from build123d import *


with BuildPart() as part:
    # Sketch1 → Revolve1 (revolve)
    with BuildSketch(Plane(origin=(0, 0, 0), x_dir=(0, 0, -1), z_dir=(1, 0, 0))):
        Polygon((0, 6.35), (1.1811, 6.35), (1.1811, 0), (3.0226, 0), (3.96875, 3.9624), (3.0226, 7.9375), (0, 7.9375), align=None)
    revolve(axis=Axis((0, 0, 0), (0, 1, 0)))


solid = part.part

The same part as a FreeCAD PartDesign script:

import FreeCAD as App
import Part
import Sketcher
from FreeCAD import Vector
Q = App.Units.Quantity

doc = App.newDocument("Part")
body = doc.addObject("PartDesign::Body", "Body")

sketch1 = body.newObject("Sketcher::SketchObject", "Sketch")
sketch1.AttachmentSupport = (doc.getObject("YZ_Plane"), [""])
sketch1.MapMode = "FlatFace"
sketch1.addGeometry(Part.LineSegment(Vector(6.3, 0, 0), Vector(6.3, -1.2, 0)), False)
sketch1.addGeometry(Part.LineSegment(Vector(6.3, -1.2, 0), Vector(0, -1.2, 0)), False)
sketch1.addGeometry(Part.LineSegment(Vector(0, -1.2, 0), Vector(0, -3, 0)), False)
sketch1.addGeometry(Part.LineSegment(Vector(0, -3, 0), Vector(4, -4, 0)), False)
sketch1.addGeometry(Part.LineSegment(Vector(4, -4, 0), Vector(7.9, -3, 0)), False)
sketch1.addGeometry(Part.LineSegment(Vector(7.9, -3, 0), Vector(7.9, 0, 0)), False)
sketch1.addGeometry(Part.LineSegment(Vector(7.9, 0, 0), Vector(6.3, 0, 0)), False)
sketch1.addConstraint(Sketcher.Constraint("Coincident", 0, 2, 1, 1))
sketch1.addConstraint(Sketcher.Constraint("Coincident", 1, 2, 2, 1))
sketch1.addConstraint(Sketcher.Constraint("Coincident", 2, 2, 3, 1))
sketch1.addConstraint(Sketcher.Constraint("Coincident", 3, 2, 4, 1))
sketch1.addConstraint(Sketcher.Constraint("Coincident", 4, 2, 5, 1))
sketch1.addConstraint(Sketcher.Constraint("Coincident", 5, 2, 6, 1))
sketch1.addConstraint(Sketcher.Constraint("Coincident", 6, 2, 0, 1))
sketch1.addConstraint(Sketcher.Constraint("Vertical", 0))
sketch1.addConstraint(Sketcher.Constraint("Horizontal", 1))
sketch1.addConstraint(Sketcher.Constraint("Vertical", 2))
sketch1.addConstraint(Sketcher.Constraint("Vertical", 5))
sketch1.addConstraint(Sketcher.Constraint("Horizontal", 6))
sketch1.addConstraint(Sketcher.Constraint("PointOnObject", 1, 2, -2))
sketch1.addConstraint(Sketcher.Constraint("PointOnObject", 5, 2, -1))
sketch1.addConstraint(Sketcher.Constraint("Horizontal", 2, 2, 4, 2))
sketch1.addConstraint(Sketcher.Constraint("DistanceX", 1, 2, 1, 1, Q("0.25 in")))
sketch1.addConstraint(Sketcher.Constraint("DistanceX", 6, 2, 6, 1, Q("0.0625 in")))
sketch1.addConstraint(Sketcher.Constraint("DistanceY", 5, 1, 5, 2, Q("0.119 in")))
sketch1.addConstraint(Sketcher.Constraint("DistanceY", 0, 2, 0, 1, Q("0.0465 in")))
sketch1.addConstraint(Sketcher.Constraint("DistanceX", -1, 1, 3, 2, Q("0.156 in")))
sketch1.addConstraint(Sketcher.Constraint("DistanceY", 3, 2, -1, 1, Q("0.15625 in")))
revolution = body.newObject("PartDesign::Revolution", "Revolution")
revolution.Profile = sketch1
revolution.ReferenceAxis = (sketch1, ["H_Axis"])
revolution.Angle = 360

doc.recompute()
